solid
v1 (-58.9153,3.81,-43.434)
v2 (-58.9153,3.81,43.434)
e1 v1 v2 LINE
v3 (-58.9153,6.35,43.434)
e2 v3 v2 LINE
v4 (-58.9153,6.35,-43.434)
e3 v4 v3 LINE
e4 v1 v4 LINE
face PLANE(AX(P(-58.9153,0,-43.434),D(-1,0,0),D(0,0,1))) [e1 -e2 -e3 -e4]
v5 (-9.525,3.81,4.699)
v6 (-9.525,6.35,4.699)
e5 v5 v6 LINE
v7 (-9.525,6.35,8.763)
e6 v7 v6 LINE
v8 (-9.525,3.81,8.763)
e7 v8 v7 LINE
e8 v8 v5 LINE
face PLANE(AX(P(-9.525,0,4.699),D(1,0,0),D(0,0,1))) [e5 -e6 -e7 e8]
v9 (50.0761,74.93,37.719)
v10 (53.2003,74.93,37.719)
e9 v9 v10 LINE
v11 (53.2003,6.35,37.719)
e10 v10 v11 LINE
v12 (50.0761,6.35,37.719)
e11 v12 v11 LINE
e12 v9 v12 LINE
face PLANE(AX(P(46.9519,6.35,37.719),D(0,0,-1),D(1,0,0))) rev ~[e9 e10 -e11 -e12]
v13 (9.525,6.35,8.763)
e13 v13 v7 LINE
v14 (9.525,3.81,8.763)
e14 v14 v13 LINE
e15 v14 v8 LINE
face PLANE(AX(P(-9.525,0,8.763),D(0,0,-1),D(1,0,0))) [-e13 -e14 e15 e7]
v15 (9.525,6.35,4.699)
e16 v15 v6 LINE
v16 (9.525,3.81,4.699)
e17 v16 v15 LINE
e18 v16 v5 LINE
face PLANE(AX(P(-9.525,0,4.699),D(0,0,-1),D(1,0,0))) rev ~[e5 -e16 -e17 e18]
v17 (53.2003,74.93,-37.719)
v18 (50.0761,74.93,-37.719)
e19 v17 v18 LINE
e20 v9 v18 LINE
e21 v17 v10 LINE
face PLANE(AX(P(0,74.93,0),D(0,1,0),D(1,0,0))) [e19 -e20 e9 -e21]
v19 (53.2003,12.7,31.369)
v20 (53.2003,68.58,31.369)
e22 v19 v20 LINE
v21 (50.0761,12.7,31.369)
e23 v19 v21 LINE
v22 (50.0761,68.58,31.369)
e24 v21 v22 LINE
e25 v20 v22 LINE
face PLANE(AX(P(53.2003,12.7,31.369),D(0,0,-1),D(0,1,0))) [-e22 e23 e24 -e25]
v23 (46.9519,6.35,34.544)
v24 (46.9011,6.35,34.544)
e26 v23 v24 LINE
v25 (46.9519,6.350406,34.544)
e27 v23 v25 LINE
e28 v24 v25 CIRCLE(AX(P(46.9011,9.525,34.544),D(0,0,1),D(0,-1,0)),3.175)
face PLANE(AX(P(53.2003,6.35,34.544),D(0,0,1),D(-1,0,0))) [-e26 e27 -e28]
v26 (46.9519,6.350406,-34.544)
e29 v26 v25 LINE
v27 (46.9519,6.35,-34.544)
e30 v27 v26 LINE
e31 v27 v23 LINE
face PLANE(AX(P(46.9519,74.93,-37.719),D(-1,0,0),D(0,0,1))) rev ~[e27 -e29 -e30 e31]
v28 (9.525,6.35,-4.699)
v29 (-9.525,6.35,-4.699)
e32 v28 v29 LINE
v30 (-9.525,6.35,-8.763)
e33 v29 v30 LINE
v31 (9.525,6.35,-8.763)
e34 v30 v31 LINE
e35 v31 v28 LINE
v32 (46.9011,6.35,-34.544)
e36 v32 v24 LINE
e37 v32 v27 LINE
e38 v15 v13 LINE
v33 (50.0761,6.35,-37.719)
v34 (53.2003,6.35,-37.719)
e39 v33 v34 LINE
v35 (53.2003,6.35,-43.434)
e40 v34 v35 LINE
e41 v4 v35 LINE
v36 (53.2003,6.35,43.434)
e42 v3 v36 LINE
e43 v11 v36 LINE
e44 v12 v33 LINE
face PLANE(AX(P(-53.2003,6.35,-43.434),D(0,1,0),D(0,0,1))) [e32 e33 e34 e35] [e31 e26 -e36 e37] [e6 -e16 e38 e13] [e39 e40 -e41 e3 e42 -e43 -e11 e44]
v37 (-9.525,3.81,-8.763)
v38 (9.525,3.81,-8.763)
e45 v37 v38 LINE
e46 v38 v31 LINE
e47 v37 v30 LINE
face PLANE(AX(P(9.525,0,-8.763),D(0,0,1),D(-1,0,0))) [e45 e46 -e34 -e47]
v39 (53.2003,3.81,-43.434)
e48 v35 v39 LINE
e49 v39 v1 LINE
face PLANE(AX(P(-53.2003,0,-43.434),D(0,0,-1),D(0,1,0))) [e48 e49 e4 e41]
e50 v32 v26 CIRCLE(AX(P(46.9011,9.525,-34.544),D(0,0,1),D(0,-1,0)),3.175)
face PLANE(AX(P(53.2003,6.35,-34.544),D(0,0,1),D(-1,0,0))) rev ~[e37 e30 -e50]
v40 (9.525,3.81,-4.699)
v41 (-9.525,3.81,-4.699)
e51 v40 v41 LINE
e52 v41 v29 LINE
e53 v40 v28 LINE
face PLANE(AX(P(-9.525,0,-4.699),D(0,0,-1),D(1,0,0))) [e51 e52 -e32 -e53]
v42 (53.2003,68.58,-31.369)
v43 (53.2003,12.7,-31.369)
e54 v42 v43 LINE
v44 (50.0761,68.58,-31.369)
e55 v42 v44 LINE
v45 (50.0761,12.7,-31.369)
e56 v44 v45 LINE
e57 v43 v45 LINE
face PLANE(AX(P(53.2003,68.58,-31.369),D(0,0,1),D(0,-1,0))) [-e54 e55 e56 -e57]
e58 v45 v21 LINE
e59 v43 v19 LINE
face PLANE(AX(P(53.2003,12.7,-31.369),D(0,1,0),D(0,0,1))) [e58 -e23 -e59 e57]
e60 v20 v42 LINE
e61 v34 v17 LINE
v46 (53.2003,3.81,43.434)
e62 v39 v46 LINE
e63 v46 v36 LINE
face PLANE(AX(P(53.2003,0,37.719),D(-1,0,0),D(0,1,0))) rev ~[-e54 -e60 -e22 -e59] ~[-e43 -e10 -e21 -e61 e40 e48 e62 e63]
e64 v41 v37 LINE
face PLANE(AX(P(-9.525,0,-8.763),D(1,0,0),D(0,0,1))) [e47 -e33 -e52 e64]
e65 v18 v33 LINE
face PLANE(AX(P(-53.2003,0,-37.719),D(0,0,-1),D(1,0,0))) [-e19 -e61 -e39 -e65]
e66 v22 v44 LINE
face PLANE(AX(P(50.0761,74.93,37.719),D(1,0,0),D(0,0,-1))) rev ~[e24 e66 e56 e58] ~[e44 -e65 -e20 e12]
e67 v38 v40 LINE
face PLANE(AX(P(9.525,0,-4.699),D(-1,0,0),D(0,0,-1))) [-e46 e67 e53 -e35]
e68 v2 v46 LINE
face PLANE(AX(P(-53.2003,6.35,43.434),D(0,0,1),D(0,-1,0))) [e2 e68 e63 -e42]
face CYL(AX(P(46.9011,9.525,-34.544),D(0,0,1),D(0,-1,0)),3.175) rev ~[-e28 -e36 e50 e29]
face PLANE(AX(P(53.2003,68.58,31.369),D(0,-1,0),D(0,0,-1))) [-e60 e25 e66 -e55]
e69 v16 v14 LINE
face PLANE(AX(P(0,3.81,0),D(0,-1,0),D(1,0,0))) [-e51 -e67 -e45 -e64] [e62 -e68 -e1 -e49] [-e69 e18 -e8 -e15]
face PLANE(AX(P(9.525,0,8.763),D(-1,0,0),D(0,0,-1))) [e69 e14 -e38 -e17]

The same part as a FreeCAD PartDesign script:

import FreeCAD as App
import Part
import Sketcher
Q = App.Units.Quantity


def edges_at(feature, points):
    """Names of the edges that pass closest to the given points."""
    edges = feature.Shape.Edges
    near = lambda p: min(range(len(edges)), key=lambda i: edges[i].distToShape(Part.Vertex(*p))[0])
    return sorted({f"Edge{near(p) + 1}" for p in points})

doc = App.newDocument("Part")
body = doc.addObject("PartDesign::Body", "Body")

sketch1 = doc.addObject("Sketcher::SketchObject", "Sketch")
body.addObject(sketch1)
sketch1.AttachmentSupport = (doc.XZ_Plane, [""])
sketch1.MapMode = "FlatFace"
sketch1.addGeometry(Part.LineSegment(App.Vector(53.2003, -37.719, 0), App.Vector(-53.2003, -37.719, 0)), False)
sketch1.addGeometry(Part.LineSegment(App.Vector(-53.2003, -37.719, 0), App.Vector(-53.2003, 37.719, 0)), False)
sketch1.addGeometry(Part.LineSegment(App.Vector(-53.2003, 37.719, 0), App.Vector(53.2003, 37.719, 0)), False)
sketch1.addGeometry(Part.LineSegment(App.Vector(53.2003, 37.719, 0), App.Vector(53.2003, -37.719, 0)), False)
sketch1.addConstraint(Sketcher.Constraint("Coincident", 0, 2, 1, 1))
sketch1.addConstraint(Sketcher.Constraint("Coincident", 1, 2, 2, 1))
sketch1.addConstraint(Sketcher.Constraint("Coincident", 2, 2, 3, 1))
sketch1.addConstraint(Sketcher.Constraint("Coincident", 3, 2, 0, 1))
sketch1.addConstraint(Sketcher.Constraint("Horizontal", 0))
sketch1.addConstraint(Sketcher.Constraint("Vertical", 1))
sketch1.addConstraint(Sketcher.Constraint("Horizontal", 2))
sketch1.addConstraint(Sketcher.Constraint("Vertical", 3))
sketch1.addConstraint(Sketcher.Constraint("Symmetric", 0, 2, 2, 2, -1, 1))
sketch1.addConstraint(Sketcher.Constraint("DistanceY", 1, 1, 1, 2, Q("2.97 in")))
sketch1.addConstraint(Sketcher.Constraint("DistanceX", 0, 2, 0, 1, Q("4.189 in")))
pad1 = doc.addObject("PartDesign::Pad", "Pad")
body.addObject(pad1)
pad1.Profile = sketch1
pad1.Length = Q("0.25 in")
pad1.Reversed = True

sketch2 = doc.addObject("Sketcher::SketchObject", "Sketch001")
body.addObject(sketch2)
sketch2.AttachmentSupport = (doc.XZ_Plane, [""])
sketch2.MapMode = "FlatFace"
sketch2.AttachmentOffset = App.Placement(App.Vector(0, 0, -0.25 * 25.4), App.Rotation())
sketch2.addGeometry(Part.LineSegment(App.Vector(50.0761, 34.544, 0), App.Vector(53.2003, 34.544, 0)), False)
sketch2.addGeometry(Part.LineSegment(App.Vector(53.2003, 34.544, 0), App.Vector(53.2003, -34.544, 0)), False)
sketch2.addGeometry(Part.LineSegment(App.Vector(53.2003, -34.544, 0), App.Vector(50.0761, -34.544, 0)), False)
sketch2.addGeometry(Part.LineSegment(App.Vector(50.0761, -34.544, 0), App.Vector(50.0761, 34.544, 0)), False)
sketch2.addConstraint(Sketcher.Constraint("Coincident", 0, 2, 1, 1))
sketch2.addConstraint(Sketcher.Constraint("Coincident", 1, 2, 2, 1))
sketch2.addConstraint(Sketcher.Constraint("Coincident", 2, 2, 3, 1))
sketch2.addConstraint(Sketcher.Constraint("Coincident", 3, 2, 0, 1))
sketch2.addConstraint(Sketcher.Constraint("Horizontal", 0))
sketch2.addConstraint(Sketcher.Constraint("Vertical", 1))
sketch2.addConstraint(Sketcher.Constraint("Horizontal", 2))
sketch2.addConstraint(Sketcher.Constraint("Vertical", 3))
sketch2.addConstraint(Sketcher.Constraint("DistanceX", 0, 1, 0, 2, Q("0.123 in")))
sketch2.addConstraint(Sketcher.Constraint("DistanceY", 1, 2, 1, 1, Q("2.72 in")))
sketch2.addConstraint(Sketcher.Constraint("DistanceY", -1, 1, 0, 2, Q("1.36 in")))
sketch2.addConstraint(Sketcher.Constraint("DistanceX", -1, 1, 0, 2, Q("2.0945 in")))
pad2 = doc.addObject("PartDesign::Pad", "Pad001")
body.addObject(pad2)
pad2.Profile = sketch2
pad2.Length = Q("2.7 in")
pad2.Reversed = True
doc.recompute()

fillet = doc.addObject("PartDesign::Fillet", "Fillet")
body.addObject(fillet)
fillet.Base = (pad2, edges_at(pad2, [(50.076, 6.35, 0)]))
fillet.Radius = Q("0.125 in")

sketch3 = doc.addObject("Sketcher::SketchObject", "Sketch002")
body.addObject(sketch3)
sketch3.AttachmentSupport = (doc.XZ_Plane, [""])
sketch3.MapMode = "FlatFace"
sketch3.addGeometry(Part.LineSegment(App.Vector(9.525, 8.763, 0), App.Vector(-9.525, 8.763, 0)), False)
sketch3.addGeometry(Part.LineSegment(App.Vector(-9.525, 8.763, 0), App.Vector(-9.525, 4.699, 0)), False)
sketch3.addGeometry(Part.LineSegment(App.Vector(-9.525, 4.699, 0), App.Vector(9.525, 4.699, 0)), False)
sketch3.addGeometry(Part.LineSegment(App.Vector(9.525, 4.699, 0), App.Vector(9.525, 8.763, 0)), False)
sketch3.addGeometry(Part.LineSegment(App.Vector(9.525, -4.699, 0), App.Vector(-9.525, -4.699, 0)), False)
sketch3.addGeometry(Part.LineSegment(App.Vector(-9.525, -4.699, 0), App.Vector(-9.525, -8.763, 0)), False)
sketch3.addGeometry(Part.LineSegment(App.Vector(-9.525, -8.763, 0), App.Vector(9.525, -8.763, 0)), False)
sketch3.addGeometry(Part.LineSegment(App.Vector(9.525, -8.763, 0), App.Vector(9.525, -4.699, 0)), False)
sketch3.addConstraint(Sketcher.Constraint("Coincident", 0, 2, 1, 1))
sketch3.addConstraint(Sketcher.Constraint("Coincident", 1, 2, 2, 1))
sketch3.addConstraint(Sketcher.Constraint("Coincident", 2, 2, 3, 1))
sketch3.addConstraint(Sketcher.Constraint("Coincident", 3, 2, 0, 1))
sketch3.addConstraint(Sketcher.Constraint("Coincident", 4, 2, 5, 1))
sketch3.addConstraint(Sketcher.Constraint("Coincident", 5, 2, 6, 1))
sketch3.addConstraint(Sketcher.Constraint("Coincident", 6, 2, 7, 1))
sketch3.addConstraint(Sketcher.Constraint("Coincident", 7, 2, 4, 1))
sketch3.addConstraint(Sketcher.Constraint("Horizontal", 0))
sketch3.addConstraint(Sketcher.Constraint("Vertical", 1))
sketch3.addConstraint(Sketcher.Constraint("Horizontal", 2))
sketch3.addConstraint(Sketcher.Constraint("Vertical", 3))
sketch3.addConstraint(Sketcher.Constraint("Horizontal", 4))
sketch3.addConstraint(Sketcher.Constraint("Vertical", 5))
sketch3.addConstraint(Sketcher.Constraint("Horizontal", 6))
sketch3.addConstraint(Sketcher.Constraint("Vertical", 7))
sketch3.addConstraint(Sketcher.Constraint("Symmetric", 2, 2, 4, 2, -1, 1))
sketch3.addConstraint(Sketcher.Constraint("Symmetric", 0, 2, 6, 2, -1, 1))
sketch3.addConstraint(Sketcher.Constraint("Vertical", 1, 2, 4, 2))
sketch3.addConstraint(Sketcher.Constraint("DistanceX", 0, 2, 0, 1, Q("0.75 in")))
sketch3.addConstraint(Sketcher.Constraint("DistanceY", 1, 2, 1, 1, Q("0.16 in")))
sketch3.addConstraint(Sketcher.Constraint("DistanceY", 5, 2, 0, 2, Q("0.69 in")))
pocket1 = doc.addObject("PartDesign::Pocket", "Pocket")
body.addObject(pocket1)
pocket1.Profile = sketch3
pocket1.Length = Q("2.7 in")

sketch4 = doc.addObject("Sketcher::SketchObject", "Sketch003")
body.addObject(sketch4)
sketch4.AttachmentSupport = (doc.XZ_Plane, [""])
sketch4.MapMode = "FlatFace"
sketch4.AttachmentOffset = App.Placement(App.Vector(0, 0, -0.25 * 25.4), App.Rotation())
sketch4.addGeometry(Part.LineSegment(App.Vector(53.2003, 37.719, 0), App.Vector(53.2003, -37.719, 0)), False)
sketch4.addGeometry(Part.LineSegment(App.Vector(53.2003, -37.719, 0), App.Vector(46.9519, -37.719, 0)), False)
sketch4.addGeometry(Part.LineSegment(App.Vector(46.9519, -37.719, 0), App.Vector(46.9519, 37.719, 0)), False)
sketch4.addGeometry(Part.LineSegment(App.Vector(46.9519, 37.719, 0), App.Vector(53.2003, 37.719, 0)), False)
sketch4.addConstraint(Sketcher.Constraint("Coincident", 0, 2, 1, 1))
sketch4.addConstraint(Sketcher.Constraint("Coincident", 1, 2, 2, 1))
sketch4.addConstraint(Sketcher.Constraint("Coincident", 2, 2, 3, 1))
sketch4.addConstraint(Sketcher.Constraint("Coincident", 3, 2, 0, 1))
sketch4.addConstraint(Sketcher.Constraint("Vertical", 0))
sketch4.addConstraint(Sketcher.Constraint("Horizontal", 1))
sketch4.addConstraint(Sketcher.Constraint("Vertical", 2))
sketch4.addConstraint(Sketcher.Constraint("Horizontal", 3))
sketch4.addConstraint(Sketcher.Constraint("DistanceY", 0, 2, 0, 1, Q("2.97 in")))
sketch4.addConstraint(Sketcher.Constraint("DistanceX", 1, 2, 1, 1, Q("0.246 in")))
sketch4.addConstraint(Sketcher.Constraint("DistanceY", 0, 2, -1, 1, Q("1.485 in")))
sketch4.addConstraint(Sketcher.Constraint("DistanceX", -1, 1, 0, 2, Q("2.0945 in")))
pad3 = doc.addObject("PartDesign::Pad", "Pad002")
body.addObject(pad3)
pad3.Profile = sketch4
pad3.Length = Q("2.7 in")
pad3.Reversed = True

sketch5 = doc.addObject("Sketcher::SketchObject", "Sketch004")
body.addObject(sketch5)
sketch5.AttachmentSupport = (doc.XZ_Plane, [""])
sketch5.MapMode = "FlatFace"
sketch5.AttachmentOffset = App.Placement(App.Vector(0, 0, -2.95 * 25.4), App.Rotation())
sketch5.addGeometry(Part.LineSegment(App.Vector(46.9519, 37.719, 0), App.Vector(50.0761, 37.719, 0)), False)
sketch5.addGeometry(Part.LineSegment(App.Vector(50.0761, 37.719, 0), App.Vector(50.0761, -37.719, 0)), False)
sketch5.addGeometry(Part.LineSegment(App.Vector(50.0761, -37.719, 0), App.Vector(46.9519, -37.719, 0)), False)
sketch5.addGeometry(Part.LineSegment(App.Vector(46.9519, -37.719, 0), App.Vector(46.9519, 37.719, 0)), False)
sketch5.addConstraint(Sketcher.Constraint("Coincident", 0, 2, 1, 1))
sketch5.addConstraint(Sketcher.Constraint("Coincident", 1, 2, 2, 1))
sketch5.addConstraint(Sketcher.Constraint("Coincident", 2, 2, 3, 1))
sketch5.addConstraint(Sketcher.Constraint("Coincident", 3, 2, 0, 1))
sketch5.addConstraint(Sketcher.Constraint("Horizontal", 0))
sketch5.addConstraint(Sketcher.Constraint("Vertical", 1))
sketch5.addConstraint(Sketcher.Constraint("Horizontal", 2))
sketch5.addConstraint(Sketcher.Constraint("Vertical", 3))
sketch5.addConstraint(Sketcher.Constraint("DistanceY", 1, 2, 1, 1, Q("2.97 in")))
sketch5.addConstraint(Sketcher.Constraint("DistanceX", 0, 1, 0, 2, Q("0.123 in")))
sketch5.addConstraint(Sketcher.Constraint("DistanceY", -1, 1, 0, 2, Q("1.485 in")))
sketch5.addConstraint(Sketcher.Constraint("DistanceX", -1, 1, 0, 2, Q("1.9715 in")))
pocket2 = doc.addObject("PartDesign::Pocket", "Pocket001")
body.addObject(pocket2)
pocket2.Profile = sketch5
pocket2.Length = Q("2.7 in")
pocket2.Reversed = True

sketch6 = doc.addObject("Sketcher::SketchObject", "Sketch005")
body.addObject(sketch6)
sketch6.AttachmentSupport = (doc.XY_Plane, [""])
sketch6.MapMode = "FlatFace"
sketch6.AttachmentOffset = App.Placement(App.Vector(0, 0, -1.485 * 25.4), App.Rotation())
sketch6.addGeometry(Part.LineSegment(App.Vector(-53.2003, 6.35, 0), App.Vector(53.2003, 6.35, 0)), False)
sketch6.addGeometry(Part.LineSegment(App.Vector(53.2003, 6.35, 0), App.Vector(53.2003, 0, 0)), False)
sketch6.addGeometry(Part.LineSegment(App.Vector(53.2003, 0, 0), App.Vector(-53.2003, 0, 0)), False)
sketch6.addGeometry(Part.LineSegment(App.Vector(-53.2003, 0, 0), App.Vector(-53.2003, 6.35, 0)), False)
sketch6.addConstraint(Sketcher.Constraint("Coincident", 0, 2, 1, 1))
sketch6.addConstraint(Sketcher.Constraint("Coincident", 1, 2, 2, 1))
sketch6.addConstraint(Sketcher.Constraint("Coincident", 2, 2, 3, 1))
sketch6.addConstraint(Sketcher.Constraint("Coincident", 3, 2, 0, 1))
sketch6.addConstraint(Sketcher.Constraint("Horizontal", 0))
sketch6.addConstraint(Sketcher.Constraint("Vertical", 1))
sketch6.addConstraint(Sketcher.Constraint("Horizontal", 2))
sketch6.addConstraint(Sketcher.Constraint("Vertical", 3))
sketch6.addConstraint(Sketcher.Constraint("Symmetric", 1, 2, 2, 2, -1, 1))
sketch6.addConstraint(Sketcher.Constraint("DistanceY", 1, 2, 1, 1, Q("0.25 in")))
sketch6.addConstraint(Sketcher.Constraint("DistanceX", 0, 1, 0, 2, Q("4.189 in")))
pad4 = doc.addObject("PartDesign::Pad", "Pad003")
body.addObject(pad4)
pad4.Profile = sketch6
pad4.Length = Q("0.225 in")
pad4.Reversed = True

sketch7 = doc.addObject("Sketcher::SketchObject", "Sketch006")
body.addObject(sketch7)
sketch7.AttachmentSupport = (doc.XY_Plane, [""])
sketch7.MapMode = "FlatFace"
sketch7.AttachmentOffset = App.Placement(App.Vector(0, 0, 1.485 * 25.4), App.Rotation())
sketch7.addGeometry(Part.LineSegment(App.Vector(53.2003, 6.35, 0), App.Vector(-53.2003, 6.35, 0)), False)
sketch7.addGeometry(Part.LineSegment(App.Vector(-53.2003, 6.35, 0), App.Vector(-53.2003, 0, 0)), False)
sketch7.addGeometry(Part.LineSegment(App.Vector(-53.2003, 0, 0), App.Vector(53.2003, 0, 0)), False)
sketch7.addGeometry(Part.LineSegment(App.Vector(53.2003, 0, 0), App.Vector(53.2003, 6.35, 0)), False)
sketch7.addConstraint(Sketcher.Constraint("Coincident", 0, 2, 1, 1))
sketch7.addConstraint(Sketcher.Constraint("Coincident", 1, 2, 2, 1))
sketch7.addConstraint(Sketcher.Constraint("Coincident", 2, 2, 3, 1))
sketch7.addConstraint(Sketcher.Constraint("Coincident", 3, 2, 0, 1))
sketch7.addConstraint(Sketcher.Constraint("Horizontal", 0))
sketch7.addConstraint(Sketcher.Constraint("Vertical", 1))
sketch7.addConstraint(Sketcher.Constraint("Horizontal", 2))
sketch7.addConstraint(Sketcher.Constraint("Vertical", 3))
sketch7.addConstraint(Sketcher.Constraint("Symmetric", 1, 2, 2, 2, -1, 1))
sketch7.addConstraint(Sketcher.Constraint("DistanceY", 1, 2, 1, 1, Q("0.25 in")))
sketch7.addConstraint(Sketcher.Constraint("DistanceX", 0, 2, 0, 1, Q("4.189 in")))
pad5 = doc.addObject("PartDesign::Pad", "Pad004")
body.addObject(pad5)
pad5.Profile = sketch7
pad5.Length = Q("0.225 in")

sketch8 = doc.addObject("Sketcher::SketchObject", "Sketch007")
body.addObject(sketch8)
sketch8.AttachmentSupport = (doc.YZ_Plane, [""])
sketch8.MapMode = "FlatFace"
sketch8.AttachmentOffset = App.Placement(App.Vector(0, 0, -2.0945 * 25.4), App.Rotation())
sketch8.addGeometry(Part.LineSegment(App.Vector(6.35, -43.434, 0), App.Vector(0, -43.434, 0)), False)
sketch8.addGeometry(Part.LineSegment(App.Vector(0, -43.434, 0), App.Vector(0, 43.434, 0)), False)
sketch8.addGeometry(Part.LineSegment(App.Vector(0, 43.434, 0), App.Vector(6.35, 43.434, 0)), False)
sketch8.addGeometry(Part.LineSegment(App.Vector(6.35, 43.434, 0), App.Vector(6.35, -43.434, 0)), False)
sketch8.addConstraint(Sketcher.Constraint("Coincident", 0, 2, 1, 1))
sketch8.addConstraint(Sketcher.Constraint("Coincident", 1, 2, 2, 1))
sketch8.addConstraint(Sketcher.Constraint("Coincident", 2, 2, 3, 1))
sketch8.addConstraint(Sketcher.Constraint("Coincident", 3, 2, 0, 1))
sketch8.addConstraint(Sketcher.Constraint("Horizontal", 0))
sketch8.addConstraint(Sketcher.Constraint("Vertical", 1))
sketch8.addConstraint(Sketcher.Constraint("Horizontal", 2))
sketch8.addConstraint(Sketcher.Constraint("Vertical", 3))
sketch8.addConstraint(Sketcher.Constraint("Symmetric", 0, 2, 1, 2, -1, 1))
sketch8.addConstraint(Sketcher.Constraint("DistanceX", 0, 2, 0, 1, Q("0.25 in")))
sketch8.addConstraint(Sketcher.Constraint("DistanceY", 1, 1, 1, 2, Q("3.42 in")))
pad6 = doc.addObject("PartDesign::Pad", "Pad005")
body.addObject(pad6)
pad6.Profile = sketch8
pad6.Length = Q("0.225 in")
pad6.Reversed = True

sketch9 = doc.addObject("Sketcher::SketchObject", "Sketch008")
body.addObject(sketch9)
sketch9.AttachmentSupport = (doc.XZ_Plane, [""])
sketch9.MapMode = "FlatFace"
sketch9.addGeometry(Part.LineSegment(App.Vector(-61.9125, 50.8, 0), App.Vector(-61.9125, -50.8, 0)), False)
sketch9.addGeometry(Part.LineSegment(App.Vector(-61.9125, -50.8, 0), App.Vector(61.9125, -50.8, 0)), False)
sketch9.addGeometry(Part.LineSegment(App.Vector(61.9125, -50.8, 0), App.Vector(61.9125, 50.8, 0)), False)
sketch9.addGeometry(Part.LineSegment(App.Vector(61.9125, 50.8, 0), App.Vector(-61.9125, 50.8, 0)), False)
sketch9.addConstraint(Sketcher.Constraint("Coincident", 0, 2, 1, 1))
sketch9.addConstraint(Sketcher.Constraint("Coincident", 1, 2, 2, 1))
sketch9.addConstraint(Sketcher.Constraint("Coincident", 2, 2, 3, 1))
sketch9.addConstraint(Sketcher.Constraint("Coincident", 3, 2, 0, 1))
sketch9.addConstraint(Sketcher.Constraint("Vertical", 0))
sketch9.addConstraint(Sketcher.Constraint("Horizontal", 1))
sketch9.addConstraint(Sketcher.Constraint("Vertical", 2))
sketch9.addConstraint(Sketcher.Constraint("Horizontal", 3))
sketch9.addConstraint(Sketcher.Constraint("Symmetric", 0, 2, 2, 2, -1, 1))
sketch9.addConstraint(Sketcher.Constraint("DistanceY", 0, 2, 0, 1, Q("4 in")))
sketch9.addConstraint(Sketcher.Constraint("DistanceX", 1, 1, 1, 2, Q("4.875 in")))
pocket3 = doc.addObject("PartDesign::Pocket", "Pocket002")
body.addObject(pocket3)
pocket3.Profile = sketch9
pocket3.Length = Q("0.15 in")

sketch10 = doc.addObject("Sketcher::SketchObject", "Sketch009")
body.addObject(sketch10)
sketch10.AttachmentSupport = (doc.YZ_Plane, [""])
sketch10.MapMode = "FlatFace"
sketch10.AttachmentOffset = App.Placement(App.Vector(0, 0, 2.0945 * 25.4), App.Rotation())
sketch10.addGeometry(Part.LineSegment(App.Vector(68.58, -31.369, 0), App.Vector(68.58, 31.369, 0)), False)
sketch10.addGeometry(Part.LineSegment(App.Vector(68.58, 31.369, 0), App.Vector(12.7, 31.369, 0)), False)
sketch10.addGeometry(Part.LineSegment(App.Vector(12.7, 31.369, 0), App.Vector(12.7, -31.369, 0)), False)
sketch10.addGeometry(Part.LineSegment(App.Vector(12.7, -31.369, 0), App.Vector(68.58, -31.369, 0)), False)
sketch10.addConstraint(Sketcher.Constraint("Coincident", 0, 2, 1, 1))
sketch10.addConstraint(Sketcher.Constraint("Coincident", 1, 2, 2, 1))
sketch10.addConstraint(Sketcher.Constraint("Coincident", 2, 2, 3, 1))
sketch10.addConstraint(Sketcher.Constraint("Coincident", 3, 2, 0, 1))
sketch10.addConstraint(Sketcher.Constraint("Vertical", 0))
sketch10.addConstraint(Sketcher.Constraint("Horizontal", 1))
sketch10.addConstraint(Sketcher.Constraint("Vertical", 2))
sketch10.addConstraint(Sketcher.Constraint("Horizontal", 3))
sketch10.addConstraint(Sketcher.Constraint("DistanceX", 1, 2, 1, 1, Q("2.2 in")))
sketch10.addConstraint(Sketcher.Constraint("DistanceY", 0, 1, 0, 2, Q("2.47 in")))
sketch10.addConstraint(Sketcher.Constraint("DistanceX", -1, 1, 0, 2, Q("2.7 in")))
sketch10.addConstraint(Sketcher.Constraint("DistanceY", -1, 1, 0, 2, Q("1.235 in")))
pocket4 = doc.addObject("PartDesign::Pocket", "Pocket003")
body.addObject(pocket4)
pocket4.Profile = sketch10
pocket4.Length = Q("15 in")

doc.recompute()
